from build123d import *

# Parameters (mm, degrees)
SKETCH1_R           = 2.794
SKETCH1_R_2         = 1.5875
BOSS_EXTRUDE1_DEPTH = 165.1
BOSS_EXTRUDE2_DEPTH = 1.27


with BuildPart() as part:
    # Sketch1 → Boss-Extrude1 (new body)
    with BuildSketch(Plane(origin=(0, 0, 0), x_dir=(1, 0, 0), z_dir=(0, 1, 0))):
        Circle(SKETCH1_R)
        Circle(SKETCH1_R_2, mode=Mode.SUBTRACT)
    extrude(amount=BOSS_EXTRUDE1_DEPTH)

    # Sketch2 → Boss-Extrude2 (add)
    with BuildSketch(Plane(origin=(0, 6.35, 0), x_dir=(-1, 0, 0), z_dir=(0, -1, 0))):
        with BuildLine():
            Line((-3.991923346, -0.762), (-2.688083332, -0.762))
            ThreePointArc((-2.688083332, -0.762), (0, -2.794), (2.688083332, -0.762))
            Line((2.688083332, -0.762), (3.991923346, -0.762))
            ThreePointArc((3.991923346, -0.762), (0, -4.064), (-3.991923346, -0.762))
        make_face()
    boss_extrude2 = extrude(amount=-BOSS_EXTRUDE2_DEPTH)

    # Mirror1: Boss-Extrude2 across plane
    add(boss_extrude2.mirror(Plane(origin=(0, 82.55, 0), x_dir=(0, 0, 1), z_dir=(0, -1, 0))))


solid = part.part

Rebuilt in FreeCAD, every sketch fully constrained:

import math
import FreeCAD as App
import Part
import Sketcher

V = App.Vector
Q = App.Units.Quantity

doc = App.newDocument("Part")
body = doc.addObject("PartDesign::Body", "Body")

# Sketch on XZ plane
sketch1 = doc.addObject("Sketcher::SketchObject", "Sketch")
body.addObject(sketch1)
sketch1.AttachmentSupport = (doc.XZ_Plane, [""])
sketch1.MapMode = "FlatFace"
sketch1.addGeometry([
    Part.Circle(V(0, 0, 0), V(0, 0, 1), 2.794),
    Part.Circle(V(0, 0, 0), V(0, 0, 1), 1.5875),
], False)
sketch1.addConstraint([
    Sketcher.Constraint("Coincident", 0, 3, -1, 1),
    Sketcher.Constraint("Coincident", 1, 3, -1, 1),
    Sketcher.Constraint("Diameter", 0, Q("0.22 in")),
    Sketcher.Constraint("Diameter", 1, Q("0.125 in")),
])
pad1 = doc.addObject("PartDesign::Pad", "Pad")
body.addObject(pad1)
pad1.Profile = sketch1
pad1.Length = Q("6.5 in")
pad1.Reversed = True

# Sketch on XZ plane
sketch2 = doc.addObject("Sketcher::SketchObject", "Sketch001")
body.addObject(sketch2)
sketch2.AttachmentSupport = (doc.XZ_Plane, [""])
sketch2.MapMode = "FlatFace"
sketch2.AttachmentOffset = App.Placement(V(0, 0, -0.25 * 25.4), App.Rotation())
sketch2.addGeometry([
    Part.LineSegment(V(2.688083, 0.762, 0), V(3.991923, 0.762, 0)),
    Part.ArcOfCircle(Part.Circle(V(0, 0, 0), V(0, 0, 1), 4.064), math.radians(10.806923), math.radians(169.193077)),
    Part.LineSegment(V(-3.991923, 0.762, 0), V(-2.688083, 0.762, 0)),
    Part.ArcOfCircle(Part.Circle(V(0, 0, 0), V(0, 0, 1), 2.794), math.radians(15.82662), math.radians(164.17338)),
], False)
sketch2.addConstraint([
    Sketcher.Constraint("Coincident", 0, 2, 1, 1),
    Sketcher.Constraint("Coincident", 1, 2, 2, 1),
    Sketcher.Constraint("Coincident", 2, 2, 3, 2),
    Sketcher.Constraint("Coincident", 3, 1, 0, 1),
    Sketcher.Constraint("Horizontal", 0),
    Sketcher.Constraint("Horizontal", 2),
    Sketcher.Constraint("Coincident", 1, 3, -1, 1),
    Sketcher.Constraint("Coincident", 3, 3, -1, 1),
    Sketcher.Constraint("Horizontal", 0, 2, 1, 2),
    Sketcher.Constraint("Radius", 1, Q("0.16 in")),
    Sketcher.Constraint("Radius", 3, Q("0.11 in")),
    Sketcher.Constraint("DistanceY", -1, 1, 0, 2, Q("0.03 in")),
])
pad2 = doc.addObject("PartDesign::Pad", "Pad001")
body.addObject(pad2)
pad2.Profile = sketch2
pad2.Length = Q("0.05 in")
pad2.Reversed = True
doc.recompute()

datumplane = doc.addObject("PartDesign::Plane", "DatumPlane")
body.addObject(datumplane)
datumplane.AttachmentSupport = (doc.XZ_Plane, [""])
datumplane.MapMode = "FlatFace"
datumplane.AttachmentOffset = App.Placement(V(0, 0, -3.25 * 25.4), App.Rotation())
mirrored = doc.addObject("PartDesign::Mirrored", "Mirrored")
body.addObject(mirrored)
mirrored.Originals = [pad2]
mirrored.MirrorPlane = (datumplane, [""])
body.Tip = mirrored

doc.recompute()
